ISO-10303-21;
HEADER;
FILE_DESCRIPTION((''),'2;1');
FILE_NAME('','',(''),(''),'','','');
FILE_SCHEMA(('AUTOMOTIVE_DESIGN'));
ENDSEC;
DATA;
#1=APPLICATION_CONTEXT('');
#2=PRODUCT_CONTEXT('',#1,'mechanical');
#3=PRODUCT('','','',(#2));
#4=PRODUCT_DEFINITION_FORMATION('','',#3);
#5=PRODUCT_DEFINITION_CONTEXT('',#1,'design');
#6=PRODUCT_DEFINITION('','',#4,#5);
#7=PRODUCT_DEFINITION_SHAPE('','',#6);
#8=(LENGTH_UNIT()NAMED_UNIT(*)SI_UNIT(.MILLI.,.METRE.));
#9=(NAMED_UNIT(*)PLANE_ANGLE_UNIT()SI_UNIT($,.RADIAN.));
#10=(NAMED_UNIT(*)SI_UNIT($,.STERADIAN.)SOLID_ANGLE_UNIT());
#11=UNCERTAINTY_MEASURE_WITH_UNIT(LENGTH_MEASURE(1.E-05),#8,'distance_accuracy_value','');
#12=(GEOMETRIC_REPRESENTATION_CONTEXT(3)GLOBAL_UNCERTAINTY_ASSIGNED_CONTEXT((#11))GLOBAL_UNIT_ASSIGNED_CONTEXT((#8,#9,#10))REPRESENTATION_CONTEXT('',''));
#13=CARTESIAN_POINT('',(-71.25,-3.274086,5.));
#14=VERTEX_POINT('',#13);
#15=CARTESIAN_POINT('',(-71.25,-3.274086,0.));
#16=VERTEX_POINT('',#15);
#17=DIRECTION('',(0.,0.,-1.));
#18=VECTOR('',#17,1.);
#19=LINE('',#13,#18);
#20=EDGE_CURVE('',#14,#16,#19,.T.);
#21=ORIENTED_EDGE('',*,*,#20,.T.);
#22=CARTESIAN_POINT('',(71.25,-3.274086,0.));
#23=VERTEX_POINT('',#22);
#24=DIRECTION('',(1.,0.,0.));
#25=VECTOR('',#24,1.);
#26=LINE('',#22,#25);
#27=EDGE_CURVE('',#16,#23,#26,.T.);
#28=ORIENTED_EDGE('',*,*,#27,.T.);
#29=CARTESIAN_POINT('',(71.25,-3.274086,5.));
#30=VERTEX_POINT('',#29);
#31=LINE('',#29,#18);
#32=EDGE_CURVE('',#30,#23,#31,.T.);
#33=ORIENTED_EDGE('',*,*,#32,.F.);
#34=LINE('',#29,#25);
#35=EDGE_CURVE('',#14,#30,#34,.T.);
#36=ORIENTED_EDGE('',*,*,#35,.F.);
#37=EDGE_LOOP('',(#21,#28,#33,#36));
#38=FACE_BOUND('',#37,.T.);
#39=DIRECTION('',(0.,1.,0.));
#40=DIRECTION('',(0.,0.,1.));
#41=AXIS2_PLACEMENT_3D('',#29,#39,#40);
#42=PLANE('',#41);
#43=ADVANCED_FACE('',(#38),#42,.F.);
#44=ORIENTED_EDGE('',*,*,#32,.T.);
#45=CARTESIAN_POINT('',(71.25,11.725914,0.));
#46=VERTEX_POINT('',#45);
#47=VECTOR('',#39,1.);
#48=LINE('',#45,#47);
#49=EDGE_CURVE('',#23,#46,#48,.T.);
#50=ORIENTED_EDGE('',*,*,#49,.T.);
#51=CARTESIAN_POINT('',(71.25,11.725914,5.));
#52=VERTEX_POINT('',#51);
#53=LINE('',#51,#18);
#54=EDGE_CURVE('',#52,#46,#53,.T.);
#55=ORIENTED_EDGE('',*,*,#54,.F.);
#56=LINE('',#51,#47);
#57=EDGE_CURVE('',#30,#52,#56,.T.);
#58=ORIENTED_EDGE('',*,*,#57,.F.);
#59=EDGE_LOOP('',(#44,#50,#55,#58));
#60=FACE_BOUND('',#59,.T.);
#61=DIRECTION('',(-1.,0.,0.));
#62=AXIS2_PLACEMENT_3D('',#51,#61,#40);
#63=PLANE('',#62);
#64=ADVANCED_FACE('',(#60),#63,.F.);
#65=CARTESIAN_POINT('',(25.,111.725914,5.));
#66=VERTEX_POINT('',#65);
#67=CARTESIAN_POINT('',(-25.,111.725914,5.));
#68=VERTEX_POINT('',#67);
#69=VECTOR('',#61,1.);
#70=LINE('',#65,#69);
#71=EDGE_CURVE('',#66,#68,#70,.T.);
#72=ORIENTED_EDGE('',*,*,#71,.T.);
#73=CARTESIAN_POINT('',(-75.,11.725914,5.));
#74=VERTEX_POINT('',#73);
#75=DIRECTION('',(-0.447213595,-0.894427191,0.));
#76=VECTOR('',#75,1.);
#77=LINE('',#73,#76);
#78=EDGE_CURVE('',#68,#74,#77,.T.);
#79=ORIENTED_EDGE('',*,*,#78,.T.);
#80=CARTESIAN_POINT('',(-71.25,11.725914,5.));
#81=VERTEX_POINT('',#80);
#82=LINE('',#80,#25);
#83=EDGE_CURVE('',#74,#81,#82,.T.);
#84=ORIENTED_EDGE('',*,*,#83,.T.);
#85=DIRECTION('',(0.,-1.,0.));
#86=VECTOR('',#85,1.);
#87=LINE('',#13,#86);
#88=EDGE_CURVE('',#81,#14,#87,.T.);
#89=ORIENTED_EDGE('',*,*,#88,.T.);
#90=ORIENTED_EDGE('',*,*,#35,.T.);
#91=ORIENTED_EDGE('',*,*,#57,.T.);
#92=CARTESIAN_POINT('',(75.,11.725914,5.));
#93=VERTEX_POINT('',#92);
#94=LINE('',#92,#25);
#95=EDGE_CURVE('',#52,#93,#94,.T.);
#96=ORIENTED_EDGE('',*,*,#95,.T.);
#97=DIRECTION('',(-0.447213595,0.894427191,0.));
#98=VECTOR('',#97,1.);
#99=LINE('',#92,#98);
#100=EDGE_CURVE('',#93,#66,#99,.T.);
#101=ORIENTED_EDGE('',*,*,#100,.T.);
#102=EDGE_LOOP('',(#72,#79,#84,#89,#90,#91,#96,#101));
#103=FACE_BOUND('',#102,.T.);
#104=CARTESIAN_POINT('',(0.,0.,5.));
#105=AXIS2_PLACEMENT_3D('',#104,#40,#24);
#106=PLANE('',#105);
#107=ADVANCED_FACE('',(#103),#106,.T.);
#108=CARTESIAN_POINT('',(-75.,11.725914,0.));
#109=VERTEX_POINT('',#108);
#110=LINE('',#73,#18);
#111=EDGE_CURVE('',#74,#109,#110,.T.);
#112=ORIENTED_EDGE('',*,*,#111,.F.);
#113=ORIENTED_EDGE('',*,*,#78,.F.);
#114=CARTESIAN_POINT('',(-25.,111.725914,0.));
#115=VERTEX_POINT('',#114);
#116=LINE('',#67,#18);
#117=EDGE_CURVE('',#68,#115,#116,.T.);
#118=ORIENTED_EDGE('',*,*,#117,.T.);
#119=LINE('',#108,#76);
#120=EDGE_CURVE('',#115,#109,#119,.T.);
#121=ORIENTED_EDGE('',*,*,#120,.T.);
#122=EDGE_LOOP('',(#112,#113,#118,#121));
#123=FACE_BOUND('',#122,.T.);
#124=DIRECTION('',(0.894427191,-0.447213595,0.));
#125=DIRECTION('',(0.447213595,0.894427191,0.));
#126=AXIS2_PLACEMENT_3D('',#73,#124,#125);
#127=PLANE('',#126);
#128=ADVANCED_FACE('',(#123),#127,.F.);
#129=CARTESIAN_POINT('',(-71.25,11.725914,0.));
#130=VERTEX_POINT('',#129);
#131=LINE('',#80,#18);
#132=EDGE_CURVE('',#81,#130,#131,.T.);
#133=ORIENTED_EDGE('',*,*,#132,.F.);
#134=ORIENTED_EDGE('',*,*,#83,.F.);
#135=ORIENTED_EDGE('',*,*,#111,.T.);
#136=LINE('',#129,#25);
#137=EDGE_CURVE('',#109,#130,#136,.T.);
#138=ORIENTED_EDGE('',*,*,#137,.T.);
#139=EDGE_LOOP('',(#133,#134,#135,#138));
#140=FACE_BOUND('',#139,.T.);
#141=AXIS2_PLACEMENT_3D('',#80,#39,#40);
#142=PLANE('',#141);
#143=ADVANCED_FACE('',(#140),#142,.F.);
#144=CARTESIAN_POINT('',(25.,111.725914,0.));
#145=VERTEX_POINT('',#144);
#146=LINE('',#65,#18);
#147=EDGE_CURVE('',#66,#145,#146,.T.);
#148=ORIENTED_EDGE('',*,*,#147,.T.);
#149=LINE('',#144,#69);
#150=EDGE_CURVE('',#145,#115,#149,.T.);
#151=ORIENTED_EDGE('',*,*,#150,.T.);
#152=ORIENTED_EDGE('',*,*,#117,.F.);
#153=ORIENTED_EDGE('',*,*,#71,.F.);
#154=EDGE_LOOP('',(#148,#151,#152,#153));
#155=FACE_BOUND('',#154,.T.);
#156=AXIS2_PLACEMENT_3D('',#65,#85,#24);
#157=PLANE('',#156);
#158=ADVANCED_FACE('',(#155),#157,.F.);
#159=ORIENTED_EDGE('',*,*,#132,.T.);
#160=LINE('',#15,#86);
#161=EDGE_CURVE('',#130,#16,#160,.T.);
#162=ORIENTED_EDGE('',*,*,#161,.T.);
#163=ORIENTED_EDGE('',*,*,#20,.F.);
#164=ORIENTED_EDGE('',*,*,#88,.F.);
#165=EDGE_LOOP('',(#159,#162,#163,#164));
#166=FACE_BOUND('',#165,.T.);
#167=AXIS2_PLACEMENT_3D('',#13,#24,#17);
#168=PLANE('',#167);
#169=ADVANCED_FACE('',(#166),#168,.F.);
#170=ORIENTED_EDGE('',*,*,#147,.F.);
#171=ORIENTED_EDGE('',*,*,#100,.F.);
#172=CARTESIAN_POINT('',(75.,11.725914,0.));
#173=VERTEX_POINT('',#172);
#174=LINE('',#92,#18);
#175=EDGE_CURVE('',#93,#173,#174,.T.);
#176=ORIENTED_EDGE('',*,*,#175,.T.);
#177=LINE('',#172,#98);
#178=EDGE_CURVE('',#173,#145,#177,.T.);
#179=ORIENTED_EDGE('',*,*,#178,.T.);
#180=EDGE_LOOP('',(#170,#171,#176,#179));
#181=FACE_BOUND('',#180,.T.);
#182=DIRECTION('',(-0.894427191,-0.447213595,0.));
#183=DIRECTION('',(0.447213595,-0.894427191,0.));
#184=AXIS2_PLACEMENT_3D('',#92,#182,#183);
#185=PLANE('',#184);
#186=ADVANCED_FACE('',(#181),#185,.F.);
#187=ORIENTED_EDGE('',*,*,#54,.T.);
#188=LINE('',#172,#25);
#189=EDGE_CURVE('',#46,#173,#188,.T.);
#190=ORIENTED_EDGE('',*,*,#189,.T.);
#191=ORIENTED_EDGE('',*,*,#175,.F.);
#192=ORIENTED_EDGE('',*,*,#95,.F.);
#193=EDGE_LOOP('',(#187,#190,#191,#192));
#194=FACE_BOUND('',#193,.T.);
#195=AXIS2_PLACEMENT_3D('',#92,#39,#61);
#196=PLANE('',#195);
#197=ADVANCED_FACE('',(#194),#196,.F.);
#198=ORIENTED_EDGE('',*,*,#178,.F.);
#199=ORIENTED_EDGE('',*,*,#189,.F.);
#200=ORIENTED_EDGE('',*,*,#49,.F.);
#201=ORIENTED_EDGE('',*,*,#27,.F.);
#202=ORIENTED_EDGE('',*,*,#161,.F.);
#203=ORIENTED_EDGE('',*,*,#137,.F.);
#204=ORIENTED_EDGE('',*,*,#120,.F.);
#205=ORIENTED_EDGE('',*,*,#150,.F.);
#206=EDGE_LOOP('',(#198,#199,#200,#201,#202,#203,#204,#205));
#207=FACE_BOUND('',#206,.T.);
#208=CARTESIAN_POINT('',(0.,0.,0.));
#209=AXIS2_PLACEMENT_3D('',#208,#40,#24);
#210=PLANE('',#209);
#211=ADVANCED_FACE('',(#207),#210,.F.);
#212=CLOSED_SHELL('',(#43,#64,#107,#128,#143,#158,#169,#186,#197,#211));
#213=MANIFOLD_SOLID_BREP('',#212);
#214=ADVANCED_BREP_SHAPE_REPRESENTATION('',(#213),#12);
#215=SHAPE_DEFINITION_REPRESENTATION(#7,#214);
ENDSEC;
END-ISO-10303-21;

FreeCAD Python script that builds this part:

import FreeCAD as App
import Part
import Sketcher

doc = App.newDocument("Part")
body = doc.addObject("PartDesign::Body", "Body")

# Sketch on XY plane
sketch1 = doc.addObject("Sketcher::SketchObject", "Sketch")
body.addObject(sketch1)
sketch1.AttachmentSupport = (doc.XY_Plane, [""])
sketch1.MapMode = "FlatFace"
sketch1.addGeometry(Part.LineSegment(App.Vector(71.2, 11.7, 0), App.Vector(75, 11.7, 0)), False)
sketch1.addGeometry(Part.LineSegment(App.Vector(75, 11.7, 0), App.Vector(25, 111.7, 0)), False)
sketch1.addGeometry(Part.LineSegment(App.Vector(25, 111.7, 0), App.Vector(-25, 111.7, 0)), False)
sketch1.addGeometry(Part.LineSegment(App.Vector(-25, 111.7, 0), App.Vector(-75, 11.7, 0)), False)
sketch1.addGeometry(Part.LineSegment(App.Vector(-75, 11.7, 0), App.Vector(-71.2, 11.7, 0)), False)
sketch1.addGeometry(Part.LineSegment(App.Vector(-71.2, 11.7, 0), App.Vector(-71.2, -3.3, 0)), False)
sketch1.addGeometry(Part.LineSegment(App.Vector(-71.2, -3.3, 0), App.Vector(71.2, -3.3, 0)), False)
sketch1.addGeometry(Part.LineSegment(App.Vector(71.2, -3.3, 0), App.Vector(71.2, 11.7, 0)), False)
sketch1.addConstraint(Sketcher.Constraint("Coincident", 0, 2, 1, 1))
sketch1.addConstraint(Sketcher.Constraint("Coincident", 1, 2, 2, 1))
sketch1.addConstraint(Sketcher.Constraint("Coincident", 2, 2, 3, 1))
sketch1.addConstraint(Sketcher.Constraint("Coincident", 3, 2, 4, 1))
sketch1.addConstraint(Sketcher.Constraint("Coincident", 4, 2, 5, 1))
sketch1.addConstraint(Sketcher.Constraint("Coincident", 5, 2, 6, 1))
sketch1.addConstraint(Sketcher.Constraint("Coincident", 6, 2, 7, 1))
sketch1.addConstraint(Sketcher.Constraint("Coincident", 7, 2, 0, 1))
sketch1.addConstraint(Sketcher.Constraint("Horizontal", 0))
sketch1.addConstraint(Sketcher.Constraint("Horizontal", 2))
sketch1.addConstraint(Sketcher.Constraint("Horizontal", 4))
sketch1.addConstraint(Sketcher.Constraint("Vertical", 5))
sketch1.addConstraint(Sketcher.Constraint("Horizontal", 6))
sketch1.addConstraint(Sketcher.Constraint("Vertical", 7))
sketch1.addConstraint(Sketcher.Constraint("Symmetric", 0, 2, 3, 2, -2))
sketch1.addConstraint(Sketcher.Constraint("Equal", 0, 4))
sketch1.addConstraint(Sketcher.Constraint("Equal", 1, 3))
sketch1.addConstraint(Sketcher.Constraint("DistanceX", 2, 2, 2, 1, 50.0))
sketch1.addConstraint(Sketcher.Constraint("DistanceY", 5, 2, 5, 1, 15.0))
sketch1.addConstraint(Sketcher.Constraint("DistanceX", 6, 1, 6, 2, 142.5))
sketch1.addConstraint(Sketcher.Constraint("DistanceX", -1, 1, 0, 2, 75.0))
sketch1.addConstraint(Sketcher.Constraint("DistanceY", 0, 2, 1, 2, 100.0))
sketch1.addConstraint(Sketcher.Constraint("DistanceY", -1, 1, 0, 2, 11.725914))
pad1 = doc.addObject("PartDesign::Pad", "Pad")
body.addObject(pad1)
pad1.Profile = sketch1
pad1.Length = 5

doc.recompute()
